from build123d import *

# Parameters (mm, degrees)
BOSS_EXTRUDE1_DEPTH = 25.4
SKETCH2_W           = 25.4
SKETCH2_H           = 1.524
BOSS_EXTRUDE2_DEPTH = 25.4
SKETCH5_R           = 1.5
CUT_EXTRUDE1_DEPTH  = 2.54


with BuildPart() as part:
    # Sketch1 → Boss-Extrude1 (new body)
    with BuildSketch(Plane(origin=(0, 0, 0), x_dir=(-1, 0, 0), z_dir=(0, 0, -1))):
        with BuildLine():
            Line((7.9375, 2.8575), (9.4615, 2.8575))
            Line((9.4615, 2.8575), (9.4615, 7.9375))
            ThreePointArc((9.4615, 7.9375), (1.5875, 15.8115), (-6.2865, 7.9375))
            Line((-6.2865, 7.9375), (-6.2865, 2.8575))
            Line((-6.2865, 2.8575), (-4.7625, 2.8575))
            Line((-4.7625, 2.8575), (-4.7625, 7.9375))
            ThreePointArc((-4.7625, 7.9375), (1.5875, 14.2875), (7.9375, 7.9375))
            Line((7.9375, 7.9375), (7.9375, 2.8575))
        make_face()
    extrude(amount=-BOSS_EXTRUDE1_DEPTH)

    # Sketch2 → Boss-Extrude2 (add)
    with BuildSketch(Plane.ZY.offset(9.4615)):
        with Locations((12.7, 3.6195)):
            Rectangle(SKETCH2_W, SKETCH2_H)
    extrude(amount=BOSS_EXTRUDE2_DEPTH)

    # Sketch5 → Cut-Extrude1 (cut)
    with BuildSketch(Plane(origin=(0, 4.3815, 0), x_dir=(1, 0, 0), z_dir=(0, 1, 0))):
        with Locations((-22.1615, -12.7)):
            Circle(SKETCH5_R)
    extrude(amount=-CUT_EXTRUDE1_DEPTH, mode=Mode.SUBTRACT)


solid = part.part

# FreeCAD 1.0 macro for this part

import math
import FreeCAD as App
import Part
import Sketcher
from FreeCAD import Vector
Q = App.Units.Quantity


def add_polygon(sketch, points):
    """Adds a closed chain of lines whose ends are joined by coincident constraints."""
    first, n = sketch.GeometryCount, len(points)
    for a, b in zip(points, points[1:] + points[:1]):
        sketch.addGeometry(Part.LineSegment(App.Vector(*a, 0), App.Vector(*b, 0)), False)
    for i in range(n):
        sketch.addConstraint(Sketcher.Constraint("Coincident", first + i, 2, first + (i + 1) % n, 1))

doc = App.newDocument("Part")
body = doc.addObject("PartDesign::Body", "Body")

sketch1 = body.newObject("Sketcher::SketchObject", "Sketch")
sketch1.AttachmentSupport = (doc.getObject("XY_Plane"), [""])
sketch1.MapMode = "FlatFace"
sketch1.addGeometry(Part.LineSegment(Vector(-7.9, 2.9, 0), Vector(-9.5, 2.9, 0)), False)
sketch1.addGeometry(Part.LineSegment(Vector(-9.5, 2.9, 0), Vector(-9.5, 7.9, 0)), False)
sketch1.addGeometry(Part.ArcOfCircle(Part.Circle(Vector(-1.6, 7.9, 0), Vector(0, 0, 1), 7.9), math.radians(0), math.radians(180)), False)
sketch1.addGeometry(Part.LineSegment(Vector(6.3, 7.9, 0), Vector(6.3, 2.9, 0)), False)
sketch1.addGeometry(Part.LineSegment(Vector(6.3, 2.9, 0), Vector(4.8, 2.9, 0)), False)
sketch1.addGeometry(Part.LineSegment(Vector(4.8, 2.9, 0), Vector(4.8, 7.9, 0)), False)
sketch1.addGeometry(Part.ArcOfCircle(Part.Circle(Vector(-1.6, 7.9, 0), Vector(0, 0, 1), 6.3), math.radians(0), math.radians(180)), False)
sketch1.addGeometry(Part.LineSegment(Vector(-7.9, 7.9, 0), Vector(-7.9, 2.9, 0)), False)
sketch1.addConstraint(Sketcher.Constraint("Coincident", 0, 2, 1, 1))
sketch1.addConstraint(Sketcher.Constraint("Tangent", 1, 2, 2, 2))
sketch1.addConstraint(Sketcher.Constraint("Tangent", 2, 1, 3, 1))
sketch1.addConstraint(Sketcher.Constraint("Coincident", 3, 2, 4, 1))
sketch1.addConstraint(Sketcher.Constraint("Coincident", 4, 2, 5, 1))
sketch1.addConstraint(Sketcher.Constraint("Tangent", 5, 2, 6, 1))
sketch1.addConstraint(Sketcher.Constraint("Tangent", 6, 2, 7, 1))
sketch1.addConstraint(Sketcher.Constraint("Coincident", 7, 2, 0, 1))
sketch1.addConstraint(Sketcher.Constraint("Horizontal", 0))
sketch1.addConstraint(Sketcher.Constraint("Vertical", 1))
sketch1.addConstraint(Sketcher.Constraint("Vertical", 3))
sketch1.addConstraint(Sketcher.Constraint("Horizontal", 4))
sketch1.addConstraint(Sketcher.Constraint("Vertical", 5))
sketch1.addConstraint(Sketcher.Constraint("Vertical", 7))
sketch1.addConstraint(Sketcher.Constraint("Coincident", 6, 3, 2, 3))
sketch1.addConstraint(Sketcher.Constraint("Horizontal", 0, 2, 3, 2))
sketch1.addConstraint(Sketcher.Constraint("Radius", 2, Q("0.31 in")))
sketch1.addConstraint(Sketcher.Constraint("Radius", 6, Q("0.25 in")))
sketch1.addConstraint(Sketcher.Constraint("DistanceY", 1, 1, 1, 2, Q("0.2 in")))
sketch1.addConstraint(Sketcher.Constraint("DistanceX", 2, 3, -1, 1, Q("0.0625 in")))
sketch1.addConstraint(Sketcher.Constraint("DistanceY", -1, 1, 2, 3, Q("0.3125 in")))
pad1 = body.newObject("PartDesign::Pad", "Pad")
pad1.Profile = sketch1
pad1.Length = Q("1 in")

sketch2 = body.newObject("Sketcher::SketchObject", "Sketch001")
sketch2.AttachmentSupport = (doc.getObject("YZ_Plane"), [""])
sketch2.MapMode = "FlatFace"
sketch2.AttachmentOffset = App.Placement(Vector(0, 0, -0.3725 * 25.4), App.Rotation())
add_polygon(sketch2, [(4.4, 0), (2.9, 0), (2.9, 25.4), (4.4, 25.4)])
sketch2.addConstraint(Sketcher.Constraint("Horizontal", 0))
sketch2.addConstraint(Sketcher.Constraint("Vertical", 1))
sketch2.addConstraint(Sketcher.Constraint("Horizontal", 2))
sketch2.addConstraint(Sketcher.Constraint("Vertical", 3))
sketch2.addConstraint(Sketcher.Constraint("PointOnObject", 0, 2, -1))
sketch2.addConstraint(Sketcher.Constraint("DistanceY", 1, 1, 1, 2, Q("1 in")))
sketch2.addConstraint(Sketcher.Constraint("DistanceX", 0, 2, 0, 1, Q("0.06 in")))
sketch2.addConstraint(Sketcher.Constraint("DistanceX", -1, 1, 0, 2, Q("0.1125 in")))
pad2 = body.newObject("PartDesign::Pad", "Pad001")
pad2.Profile = sketch2
pad2.Length = Q("1 in")
pad2.Reversed = True

sketch3 = body.newObject("Sketcher::SketchObject", "Sketch002")
sketch3.AttachmentSupport = (doc.getObject("XZ_Plane"), [""])
sketch3.MapMode = "FlatFace"
sketch3.AttachmentOffset = App.Placement(Vector(0, 0, -0.1725 * 25.4), App.Rotation())
sketch3.addGeometry(Part.Circle(Vector(-22.2, 12.7, 0), Vector(0, 0, 1), 1.5), False)
sketch3.addConstraint(Sketcher.Constraint("DistanceY", -1, 1, 0, 3, Q("0.5 in")))
sketch3.addConstraint(Sketcher.Constraint("Diameter", 0, 3.0))
sketch3.addConstraint(Sketcher.Constraint("DistanceX", 0, 3, -1, 1, Q("0.8725 in")))
pocket1 = body.newObject("PartDesign::Pocket", "Pocket")
pocket1.Profile = sketch3
pocket1.Length = Q("0.1 in")
pocket1.Reversed = True

doc.recompute()
